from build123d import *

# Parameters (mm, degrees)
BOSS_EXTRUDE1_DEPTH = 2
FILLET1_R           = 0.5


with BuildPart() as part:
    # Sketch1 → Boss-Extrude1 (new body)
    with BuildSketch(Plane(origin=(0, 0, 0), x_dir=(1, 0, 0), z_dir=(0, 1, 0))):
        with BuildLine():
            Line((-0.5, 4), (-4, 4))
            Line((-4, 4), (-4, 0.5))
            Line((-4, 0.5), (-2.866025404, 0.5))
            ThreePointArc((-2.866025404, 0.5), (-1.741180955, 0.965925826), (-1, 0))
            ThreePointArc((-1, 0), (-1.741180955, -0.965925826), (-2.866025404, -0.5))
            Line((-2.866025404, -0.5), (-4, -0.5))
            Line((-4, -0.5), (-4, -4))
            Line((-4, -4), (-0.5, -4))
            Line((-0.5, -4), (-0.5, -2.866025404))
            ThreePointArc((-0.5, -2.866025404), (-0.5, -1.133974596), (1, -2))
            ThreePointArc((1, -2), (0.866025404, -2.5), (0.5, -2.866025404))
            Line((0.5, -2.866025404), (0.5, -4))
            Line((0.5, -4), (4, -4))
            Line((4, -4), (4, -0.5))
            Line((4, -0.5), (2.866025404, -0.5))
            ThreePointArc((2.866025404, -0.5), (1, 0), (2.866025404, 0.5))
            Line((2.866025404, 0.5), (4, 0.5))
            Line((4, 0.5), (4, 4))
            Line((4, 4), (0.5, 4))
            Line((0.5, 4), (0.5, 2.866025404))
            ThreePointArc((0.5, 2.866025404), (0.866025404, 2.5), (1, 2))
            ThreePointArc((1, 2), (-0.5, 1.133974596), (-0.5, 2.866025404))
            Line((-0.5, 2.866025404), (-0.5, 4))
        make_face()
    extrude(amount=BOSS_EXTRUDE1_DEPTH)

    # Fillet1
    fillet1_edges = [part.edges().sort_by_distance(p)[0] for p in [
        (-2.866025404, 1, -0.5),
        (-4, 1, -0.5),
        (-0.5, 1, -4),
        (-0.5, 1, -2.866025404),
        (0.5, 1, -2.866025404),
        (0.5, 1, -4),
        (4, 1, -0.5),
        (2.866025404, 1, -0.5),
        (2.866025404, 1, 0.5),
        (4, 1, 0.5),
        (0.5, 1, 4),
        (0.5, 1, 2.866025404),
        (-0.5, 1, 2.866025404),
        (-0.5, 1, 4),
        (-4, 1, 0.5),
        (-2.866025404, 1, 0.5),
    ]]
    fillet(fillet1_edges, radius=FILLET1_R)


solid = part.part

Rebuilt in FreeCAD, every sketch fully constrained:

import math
import FreeCAD as App
import Part
import Sketcher
from FreeCAD import Vector
Q = App.Units.Quantity


def edges_at(feature, points):
    """Names of the edges that pass closest to the given points."""
    edges = feature.Shape.Edges
    near = lambda p: min(range(len(edges)), key=lambda i: edges[i].distToShape(Part.Vertex(*p))[0])
    return sorted({f"Edge{near(p) + 1}" for p in points})

doc = App.newDocument("Part")
body = doc.addObject("PartDesign::Body", "Body")

# Sketch on XZ plane
sketch1 = doc.addObject("Sketcher::SketchObject", "Sketch")
body.addObject(sketch1)
sketch1.AttachmentSupport = (doc.XZ_Plane, [""])
sketch1.MapMode = "FlatFace"
sketch1.addGeometry([
    Part.LineSegment(Vector(-0.5, -4, 0), Vector(-4, -4, 0)),  # 0
    Part.LineSegment(Vector(-4, -4, 0), Vector(-4, -0.5, 0)),  # 1
    Part.LineSegment(Vector(-4, -0.5, 0), Vector(-2.866025, -0.5, 0)),  # 2
    Part.ArcOfCircle(Part.Circle(Vector(-2, 0, 0), Vector(0, 0, 1), 1), math.radians(-150), math.radians(0)),  # 3
    Part.ArcOfCircle(Part.Circle(Vector(-2, 0, 0), Vector(0, 0, 1), 1), math.radians(0), math.radians(150)),  # 4
    Part.LineSegment(Vector(-2.866025, 0.5, 0), Vector(-4, 0.5, 0)),  # 5
    Part.LineSegment(Vector(-4, 0.5, 0), Vector(-4, 4, 0)),  # 6
    Part.LineSegment(Vector(-4, 4, 0), Vector(-0.5, 4, 0)),  # 7
    Part.LineSegment(Vector(-0.5, 4, 0), Vector(-0.5, 2.866025, 0)),  # 8
    Part.ArcOfCircle(Part.Circle(Vector(0, 2, 0), Vector(0, 0, 1), 1), math.radians(120), math.radians(360)),  # 9
    Part.ArcOfCircle(Part.Circle(Vector(0, 2, 0), Vector(0, 0, 1), 1), math.radians(0), math.radians(60)),  # 10
    Part.LineSegment(Vector(0.5, 2.866025, 0), Vector(0.5, 4, 0)),  # 11
    Part.LineSegment(Vector(0.5, 4, 0), Vector(4, 4, 0)),  # 12
    Part.LineSegment(Vector(4, 4, 0), Vector(4, 0.5, 0)),  # 13
    Part.LineSegment(Vector(4, 0.5, 0), Vector(2.866025, 0.5, 0)),  # 14
    Part.ArcOfCircle(Part.Circle(Vector(2, 0, 0), Vector(0, 0, 1), 1), math.radians(30), math.radians(330)),  # 15
    Part.LineSegment(Vector(2.866025, -0.5, 0), Vector(4, -0.5, 0)),  # 16
    Part.LineSegment(Vector(4, -0.5, 0), Vector(4, -4, 0)),  # 17
    Part.LineSegment(Vector(4, -4, 0), Vector(0.5, -4, 0)),  # 18
    Part.LineSegment(Vector(0.5, -4, 0), Vector(0.5, -2.866025, 0)),  # 19
    Part.ArcOfCircle(Part.Circle(Vector(0, -2, 0), Vector(0, 0, 1), 1), math.radians(-60), math.radians(0)),  # 20
    Part.ArcOfCircle(Part.Circle(Vector(0, -2, 0), Vector(0, 0, 1), 1), math.radians(0), math.radians(240)),  # 21
    Part.LineSegment(Vector(-0.5, -2.866025, 0), Vector(-0.5, -4, 0)),  # 22
], False)
sketch1.addConstraint([
    Sketcher.Constraint("Coincident", 0, 2, 1, 1),
    Sketcher.Constraint("Coincident", 1, 2, 2, 1),
    Sketcher.Constraint("Coincident", 2, 2, 3, 1),
    Sketcher.Constraint("Tangent", 3, 2, 4, 1),
    Sketcher.Constraint("Coincident", 4, 2, 5, 1),
    Sketcher.Constraint("Coincident", 5, 2, 6, 1),
    Sketcher.Constraint("Coincident", 6, 2, 7, 1),
    Sketcher.Constraint("Coincident", 7, 2, 8, 1),
    Sketcher.Constraint("Coincident", 8, 2, 9, 1),
    Sketcher.Constraint("Tangent", 9, 2, 10, 1),
    Sketcher.Constraint("Coincident", 10, 2, 11, 1),
    Sketcher.Constraint("Coincident", 11, 2, 12, 1),
    Sketcher.Constraint("Coincident", 12, 2, 13, 1),
    Sketcher.Constraint("Coincident", 13, 2, 14, 1),
    Sketcher.Constraint("Coincident", 14, 2, 15, 1),
    Sketcher.Constraint("Coincident", 15, 2, 16, 1),
    Sketcher.Constraint("Coincident", 16, 2, 17, 1),
    Sketcher.Constraint("Coincident", 17, 2, 18, 1),
    Sketcher.Constraint("Coincident", 18, 2, 19, 1),
    Sketcher.Constraint("Coincident", 19, 2, 20, 1),
    Sketcher.Constraint("Tangent", 20, 2, 21, 1),
    Sketcher.Constraint("Coincident", 21, 2, 22, 1),
    Sketcher.Constraint("Coincident", 22, 2, 0, 1),
    Sketcher.Constraint("Horizontal", 0),
    Sketcher.Constraint("Vertical", 1),
    Sketcher.Constraint("Horizontal", 2),
    Sketcher.Constraint("Horizontal", 5),
    Sketcher.Constraint("Vertical", 6),
    Sketcher.Constraint("Horizontal", 7),
    Sketcher.Constraint("Vertical", 8),
    Sketcher.Constraint("Vertical", 11),
    Sketcher.Constraint("Horizontal", 12),
    Sketcher.Constraint("Vertical", 13),
    Sketcher.Constraint("Horizontal", 14),
    Sketcher.Constraint("Horizontal", 16),
    Sketcher.Constraint("Vertical", 17),
    Sketcher.Constraint("Horizontal", 18),
    Sketcher.Constraint("Vertical", 19),
    Sketcher.Constraint("Vertical", 22),
    Sketcher.Constraint("Equal", 3, 4),
    Sketcher.Constraint("Equal", 4, 9),
    Sketcher.Constraint("Equal", 9, 10),
    Sketcher.Constraint("Equal", 10, 15),
    Sketcher.Constraint("Equal", 15, 20),
    Sketcher.Constraint("Equal", 20, 21),
    Sketcher.Constraint("Symmetric", 3, 3, 15, 3, -1, 1),
    Sketcher.Constraint("Symmetric", 9, 3, 20, 3, -1, 1),
    Sketcher.Constraint("Symmetric", 0, 2, 12, 2, -1, 1),
    Sketcher.Constraint("Symmetric", 5, 2, 16, 2, -1, 1),
    Sketcher.Constraint("Symmetric", 7, 2, 18, 2, -1, 1),
    Sketcher.Constraint("Symmetric", 8, 2, 10, 2, -2),
    Sketcher.Constraint("Symmetric", 6, 2, 12, 2, -2),
    Sketcher.Constraint("Symmetric", 4, 2, 14, 2, -2),
    Sketcher.Constraint("PointOnObject", 3, 2, -1),
    Sketcher.Constraint("Horizontal", 10, 3, 9, 2),
    Sketcher.Constraint("Horizontal", 2, 2, 15, 2),
    Sketcher.Constraint("Horizontal", 21, 3, 20, 2),
    Sketcher.Constraint("Horizontal", 19, 2, 21, 2),
    Sketcher.Constraint("Equal", 18, 1),
    Sketcher.Constraint("Equal", 16, 8),
    Sketcher.Constraint("Radius", 3, Q("1 mm")),
    Sketcher.Constraint("DistanceX", 0, 2, 0, 1, Q("3.5 mm")),
    Sketcher.Constraint("DistanceX", 3, 3, -1, 1, Q("2 mm")),
    Sketcher.Constraint("DistanceY", -1, 1, 9, 3, Q("2 mm")),
    Sketcher.Constraint("DistanceX", 0, 2, -1, 1, Q("4 mm")),
])
pad1 = doc.addObject("PartDesign::Pad", "Pad")
body.addObject(pad1)
pad1.Profile = sketch1
pad1.Length = 2
pad1.Reversed = True
doc.recompute()

fillet = doc.addObject("PartDesign::Fillet", "Fillet")
body.addObject(fillet)
fillet.Base = (pad1, edges_at(pad1, [
    (-2.866, 1, -0.5),
    (-4, 1, -0.5),
    (-0.5, 1, -4),
    (-0.5, 1, -2.866),
    (0.5, 1, -2.866),
    (0.5, 1, -4),
    (4, 1, -0.5),
    (2.866, 1, -0.5),
    (2.866, 1, 0.5),
    (4, 1, 0.5),
    (0.5, 1, 4),
    (0.5, 1, 2.866),
    (-0.5, 1, 2.866),
    (-0.5, 1, 4),
    (-4, 1, 0.5),
    (-2.866, 1, 0.5),
]))
fillet.Radius = 0.5

doc.recompute()
